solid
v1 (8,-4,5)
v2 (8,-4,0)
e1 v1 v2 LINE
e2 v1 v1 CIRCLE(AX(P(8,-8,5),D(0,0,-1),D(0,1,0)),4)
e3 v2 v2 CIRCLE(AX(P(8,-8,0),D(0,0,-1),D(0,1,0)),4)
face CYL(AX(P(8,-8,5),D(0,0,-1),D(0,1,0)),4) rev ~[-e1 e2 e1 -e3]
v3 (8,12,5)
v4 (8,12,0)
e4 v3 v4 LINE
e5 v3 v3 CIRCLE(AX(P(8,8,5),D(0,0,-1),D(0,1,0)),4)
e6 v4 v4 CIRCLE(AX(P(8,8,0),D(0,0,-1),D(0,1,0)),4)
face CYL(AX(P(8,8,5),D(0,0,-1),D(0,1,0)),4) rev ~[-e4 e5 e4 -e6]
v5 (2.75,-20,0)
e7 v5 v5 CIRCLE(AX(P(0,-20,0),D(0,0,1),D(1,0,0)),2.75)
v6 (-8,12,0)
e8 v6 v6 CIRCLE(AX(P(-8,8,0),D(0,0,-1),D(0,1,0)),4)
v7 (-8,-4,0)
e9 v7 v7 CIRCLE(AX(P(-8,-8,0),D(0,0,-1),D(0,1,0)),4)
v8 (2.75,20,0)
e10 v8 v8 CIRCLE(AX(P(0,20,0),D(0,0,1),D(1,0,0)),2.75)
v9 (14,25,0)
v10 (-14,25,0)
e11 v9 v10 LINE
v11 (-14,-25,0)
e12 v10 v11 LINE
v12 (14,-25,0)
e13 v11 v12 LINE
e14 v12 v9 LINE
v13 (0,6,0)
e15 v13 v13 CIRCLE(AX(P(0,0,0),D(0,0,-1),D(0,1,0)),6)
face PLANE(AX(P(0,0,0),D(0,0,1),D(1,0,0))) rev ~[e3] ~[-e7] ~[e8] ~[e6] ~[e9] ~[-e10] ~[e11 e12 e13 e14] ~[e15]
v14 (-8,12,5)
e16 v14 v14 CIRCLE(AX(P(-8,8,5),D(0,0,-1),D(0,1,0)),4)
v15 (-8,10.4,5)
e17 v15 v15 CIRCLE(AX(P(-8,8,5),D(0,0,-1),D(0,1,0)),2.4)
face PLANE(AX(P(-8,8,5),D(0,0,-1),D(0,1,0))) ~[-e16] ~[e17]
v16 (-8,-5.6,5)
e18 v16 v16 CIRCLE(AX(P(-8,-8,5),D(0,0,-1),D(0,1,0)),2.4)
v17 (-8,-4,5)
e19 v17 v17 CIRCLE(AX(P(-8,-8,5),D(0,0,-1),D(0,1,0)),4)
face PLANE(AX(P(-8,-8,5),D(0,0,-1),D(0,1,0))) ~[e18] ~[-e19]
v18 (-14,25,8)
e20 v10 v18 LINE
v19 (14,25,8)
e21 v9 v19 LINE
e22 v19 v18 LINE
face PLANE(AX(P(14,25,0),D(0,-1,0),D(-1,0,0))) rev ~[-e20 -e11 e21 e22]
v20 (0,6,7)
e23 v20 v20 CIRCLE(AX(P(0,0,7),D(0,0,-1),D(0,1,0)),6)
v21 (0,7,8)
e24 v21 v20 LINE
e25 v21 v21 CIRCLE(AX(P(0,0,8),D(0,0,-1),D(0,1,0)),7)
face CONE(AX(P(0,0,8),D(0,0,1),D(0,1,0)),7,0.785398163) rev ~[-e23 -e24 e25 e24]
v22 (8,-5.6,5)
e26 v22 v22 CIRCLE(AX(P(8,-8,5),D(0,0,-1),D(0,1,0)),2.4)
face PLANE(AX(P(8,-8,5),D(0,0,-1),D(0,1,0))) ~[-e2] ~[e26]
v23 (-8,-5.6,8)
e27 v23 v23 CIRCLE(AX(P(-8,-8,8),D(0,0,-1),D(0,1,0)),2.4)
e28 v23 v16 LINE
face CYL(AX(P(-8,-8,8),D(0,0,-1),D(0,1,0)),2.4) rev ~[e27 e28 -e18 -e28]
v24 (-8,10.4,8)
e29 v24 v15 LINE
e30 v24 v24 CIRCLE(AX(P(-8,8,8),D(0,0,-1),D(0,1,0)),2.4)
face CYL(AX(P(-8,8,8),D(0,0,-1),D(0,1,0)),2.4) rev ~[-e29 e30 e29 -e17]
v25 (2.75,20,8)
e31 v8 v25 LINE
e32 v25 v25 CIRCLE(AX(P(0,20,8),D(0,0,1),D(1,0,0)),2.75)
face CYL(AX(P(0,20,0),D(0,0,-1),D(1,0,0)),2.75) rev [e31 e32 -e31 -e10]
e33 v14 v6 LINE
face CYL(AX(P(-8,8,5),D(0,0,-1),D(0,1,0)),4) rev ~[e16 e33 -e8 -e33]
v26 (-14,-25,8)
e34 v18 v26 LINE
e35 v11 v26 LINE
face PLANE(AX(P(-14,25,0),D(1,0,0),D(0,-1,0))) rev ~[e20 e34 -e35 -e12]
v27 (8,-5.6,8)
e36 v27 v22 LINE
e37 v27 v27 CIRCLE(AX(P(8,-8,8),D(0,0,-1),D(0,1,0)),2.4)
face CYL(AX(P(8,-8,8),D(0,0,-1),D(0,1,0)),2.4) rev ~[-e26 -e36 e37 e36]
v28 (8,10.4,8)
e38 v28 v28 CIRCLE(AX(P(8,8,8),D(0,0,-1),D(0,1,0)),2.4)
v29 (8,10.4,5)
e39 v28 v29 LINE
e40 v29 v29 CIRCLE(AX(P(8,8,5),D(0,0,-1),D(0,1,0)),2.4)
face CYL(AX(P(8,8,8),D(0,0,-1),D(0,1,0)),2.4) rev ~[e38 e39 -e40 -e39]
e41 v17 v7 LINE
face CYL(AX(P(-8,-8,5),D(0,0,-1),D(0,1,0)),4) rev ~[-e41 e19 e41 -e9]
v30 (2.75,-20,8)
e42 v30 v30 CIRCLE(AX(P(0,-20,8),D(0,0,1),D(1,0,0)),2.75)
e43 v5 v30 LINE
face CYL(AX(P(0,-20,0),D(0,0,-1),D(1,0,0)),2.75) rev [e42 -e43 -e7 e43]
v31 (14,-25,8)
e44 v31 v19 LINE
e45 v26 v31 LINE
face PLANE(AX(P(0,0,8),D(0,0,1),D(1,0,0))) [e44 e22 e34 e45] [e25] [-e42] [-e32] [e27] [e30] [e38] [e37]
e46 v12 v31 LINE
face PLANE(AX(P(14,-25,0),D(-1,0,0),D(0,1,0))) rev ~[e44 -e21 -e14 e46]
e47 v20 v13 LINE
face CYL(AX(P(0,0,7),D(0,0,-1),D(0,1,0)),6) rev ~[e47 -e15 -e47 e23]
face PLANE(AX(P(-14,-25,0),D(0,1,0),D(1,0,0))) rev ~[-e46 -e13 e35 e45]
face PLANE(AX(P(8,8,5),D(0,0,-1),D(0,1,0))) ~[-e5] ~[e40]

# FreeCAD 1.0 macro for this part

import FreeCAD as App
import Part
import Sketcher

V = App.Vector
Q = App.Units.Quantity

doc = App.newDocument("Part")
body = doc.addObject("PartDesign::Body", "Body")

# Sketch on XY plane
sketch1 = body.newObject("Sketcher::SketchObject", "Sketch")
sketch1.AttachmentSupport = (doc.getObject("XY_Plane"), [""])
sketch1.MapMode = "FlatFace"
sketch1.addGeometry(Part.LineSegment(V(14, 25, 0), V(-14, 25, 0)), False)
sketch1.addGeometry(Part.LineSegment(V(-14, 25, 0), V(-14, -25, 0)), False)
sketch1.addGeometry(Part.LineSegment(V(-14, -25, 0), V(14, -25, 0)), False)
sketch1.addGeometry(Part.LineSegment(V(14, -25, 0), V(14, 25, 0)), False)
sketch1.addGeometry(Part.Circle(V(0, -20, 0), V(0, 0, 1), 2.75), False)
sketch1.addGeometry(Part.Circle(V(0, 20, 0), V(0, 0, 1), 2.75), False)
sketch1.addConstraint(Sketcher.Constraint("Coincident", 0, 2, 1, 1))
sketch1.addConstraint(Sketcher.Constraint("Coincident", 1, 2, 2, 1))
sketch1.addConstraint(Sketcher.Constraint("Coincident", 2, 2, 3, 1))
sketch1.addConstraint(Sketcher.Constraint("Coincident", 3, 2, 0, 1))
sketch1.addConstraint(Sketcher.Constraint("Horizontal", 0))
sketch1.addConstraint(Sketcher.Constraint("Vertical", 1))
sketch1.addConstraint(Sketcher.Constraint("Horizontal", 2))
sketch1.addConstraint(Sketcher.Constraint("Vertical", 3))
sketch1.addConstraint(Sketcher.Constraint("Equal", 4, 5))
sketch1.addConstraint(Sketcher.Constraint("Symmetric", 4, 3, 5, 3, -1, 1))
sketch1.addConstraint(Sketcher.Constraint("Symmetric", 0, 2, 2, 2, -1, 1))
sketch1.addConstraint(Sketcher.Constraint("PointOnObject", 4, 3, -2))
sketch1.addConstraint(Sketcher.Constraint("Diameter", 4, Q("5.5 mm")))
sketch1.addConstraint(Sketcher.Constraint("DistanceX", 0, 2, 0, 1, Q("28 mm")))
sketch1.addConstraint(Sketcher.Constraint("DistanceY", 1, 2, 1, 1, Q("50 mm")))
sketch1.addConstraint(Sketcher.Constraint("DistanceY", 4, 3, -1, 1, Q("20 mm")))
pad1 = body.newObject("PartDesign::Pad", "Pad")
pad1.Profile = sketch1
pad1.Length = 8

# Sketch on YZ plane
sketch2 = body.newObject("Sketcher::SketchObject", "Sketch001")
sketch2.AttachmentSupport = (doc.getObject("YZ_Plane"), [""])
sketch2.MapMode = "FlatFace"
sketch2.addGeometry(Part.LineSegment(V(0, 8, 0), V(0, 0, 0)), False)
sketch2.addGeometry(Part.LineSegment(V(0, 0, 0), V(6, 0, 0)), False)
sketch2.addGeometry(Part.LineSegment(V(6, 0, 0), V(6, 7, 0)), False)
sketch2.addGeometry(Part.LineSegment(V(6, 7, 0), V(7, 8, 0)), False)
sketch2.addGeometry(Part.LineSegment(V(7, 8, 0), V(0, 8, 0)), False)
sketch2.addConstraint(Sketcher.Constraint("Coincident", 0, 2, 1, 1))
sketch2.addConstraint(Sketcher.Constraint("Coincident", 1, 2, 2, 1))
sketch2.addConstraint(Sketcher.Constraint("Coincident", 2, 2, 3, 1))
sketch2.addConstraint(Sketcher.Constraint("Coincident", 3, 2, 4, 1))
sketch2.addConstraint(Sketcher.Constraint("Coincident", 4, 2, 0, 1))
sketch2.addConstraint(Sketcher.Constraint("Vertical", 0))
sketch2.addConstraint(Sketcher.Constraint("Horizontal", 1))
sketch2.addConstraint(Sketcher.Constraint("Vertical", 2))
sketch2.addConstraint(Sketcher.Constraint("Horizontal", 4))
sketch2.addConstraint(Sketcher.Constraint("Coincident", 0, 2, -1, 1))
sketch2.addConstraint(Sketcher.Constraint("Equal", 4, 2))
sketch2.addConstraint(Sketcher.Constraint("DistanceX", 1, 1, 1, 2, Q("6 mm")))
sketch2.addConstraint(Sketcher.Constraint("DistanceX", 4, 2, 4, 1, Q("7 mm")))
sketch2.addConstraint(Sketcher.Constraint("DistanceY", 0, 2, 0, 1, Q("8 mm")))
groove = body.newObject("PartDesign::Groove", "Groove")
groove.Profile = sketch2
groove.ReferenceAxis = (sketch2, ["V_Axis"])
groove.Angle = 360

# Sketch on YZ plane
sketch3 = body.newObject("Sketcher::SketchObject", "Sketch002")
sketch3.AttachmentSupport = (doc.getObject("YZ_Plane"), [""])
sketch3.MapMode = "FlatFace"
sketch3.AttachmentOffset = App.Placement(V(0, 0, 8), App.Rotation())
sketch3.addGeometry(Part.LineSegment(V(8, 8, 0), V(8, 0, 0)), False)
sketch3.addGeometry(Part.LineSegment(V(8, 0, 0), V(12, 0, 0)), False)
sketch3.addGeometry(Part.LineSegment(V(12, 0, 0), V(12, 5, 0)), False)
sketch3.addGeometry(Part.LineSegment(V(12, 5, 0), V(10.4, 5, 0)), False)
sketch3.addGeometry(Part.LineSegment(V(10.4, 5, 0), V(10.4, 8, 0)), False)
sketch3.addGeometry(Part.LineSegment(V(10.4, 8, 0), V(8, 8, 0)), False)
sketch3.addGeometry(Part.LineSegment(V(8, 8, 0), V(8, 0, 0)), True)  # axis
sketch3.addConstraint(Sketcher.Constraint("Coincident", 0, 2, 1, 1))
sketch3.addConstraint(Sketcher.Constraint("Coincident", 1, 2, 2, 1))
sketch3.addConstraint(Sketcher.Constraint("Coincident", 2, 2, 3, 1))
sketch3.addConstraint(Sketcher.Constraint("Coincident", 3, 2, 4, 1))
sketch3.addConstraint(Sketcher.Constraint("Coincident", 4, 2, 5, 1))
sketch3.addConstraint(Sketcher.Constraint("Coincident", 5, 2, 0, 1))
sketch3.addConstraint(Sketcher.Constraint("Vertical", 0))
sketch3.addConstraint(Sketcher.Constraint("Horizontal", 1))
sketch3.addConstraint(Sketcher.Constraint("Vertical", 2))
sketch3.addConstraint(Sketcher.Constraint("Horizontal", 3))
sketch3.addConstraint(Sketcher.Constraint("Vertical", 4))
sketch3.addConstraint(Sketcher.Constraint("Horizontal", 5))
sketch3.addConstraint(Sketcher.Constraint("Vertical", 6))
sketch3.addConstraint(Sketcher.Constraint("Coincident", 6, 1, 5, 2))
sketch3.addConstraint(Sketcher.Constraint("PointOnObject", 0, 2, -1))
sketch3.addConstraint(Sketcher.Constraint("PointOnObject", 6, 2, -1))
sketch3.addConstraint(Sketcher.Constraint("DistanceX", 1, 1, 1, 2, Q("4 mm")))
sketch3.addConstraint(Sketcher.Constraint("DistanceY", 0, 2, 0, 1, Q("8 mm")))
sketch3.addConstraint(Sketcher.Constraint("DistanceY", 2, 1, 2, 2, Q("5 mm")))
sketch3.addConstraint(Sketcher.Constraint("DistanceX", 3, 2, 3, 1, Q("1.6 mm")))
sketch3.addConstraint(Sketcher.Constraint("DistanceX", -1, 1, 0, 2, Q("8 mm")))
groove2 = body.newObject("PartDesign::Groove", "Groove001")
groove2.Profile = sketch3
groove2.ReferenceAxis = (sketch3, ["Axis0"])
groove2.Angle = 360

# Sketch on YZ plane
sketch4 = body.newObject("Sketcher::SketchObject", "Sketch003")
sketch4.AttachmentSupport = (doc.getObject("YZ_Plane"), [""])
sketch4.MapMode = "FlatFace"
sketch4.AttachmentOffset = App.Placement(V(0, 0, -8), App.Rotation())
sketch4.addGeometry(Part.LineSegment(V(8, 8, 0), V(8, 0, 0)), False)
sketch4.addGeometry(Part.LineSegment(V(8, 0, 0), V(12, 0, 0)), False)
sketch4.addGeometry(Part.LineSegment(V(12, 0, 0), V(12, 5, 0)), False)
sketch4.addGeometry(Part.LineSegment(V(12, 5, 0), V(10.4, 5, 0)), False)
sketch4.addGeometry(Part.LineSegment(V(10.4, 5, 0), V(10.4, 8, 0)), False)
sketch4.addGeometry(Part.LineSegment(V(10.4, 8, 0), V(8, 8, 0)), False)
sketch4.addGeometry(Part.LineSegment(V(8, 8, 0), V(8, 0, 0)), True)  # axis
sketch4.addConstraint(Sketcher.Constraint("Coincident", 0, 2, 1, 1))
sketch4.addConstraint(Sketcher.Constraint("Coincident", 1, 2, 2, 1))
sketch4.addConstraint(Sketcher.Constraint("Coincident", 2, 2, 3, 1))
sketch4.addConstraint(Sketcher.Constraint("Coincident", 3, 2, 4, 1))
sketch4.addConstraint(Sketcher.Constraint("Coincident", 4, 2, 5, 1))
sketch4.addConstraint(Sketcher.Constraint("Coincident", 5, 2, 0, 1))
sketch4.addConstraint(Sketcher.Constraint("Vertical", 0))
sketch4.addConstraint(Sketcher.Constraint("Horizontal", 1))
sketch4.addConstraint(Sketcher.Constraint("Vertical", 2))
sketch4.addConstraint(Sketcher.Constraint("Horizontal", 3))
sketch4.addConstraint(Sketcher.Constraint("Vertical", 4))
sketch4.addConstraint(Sketcher.Constraint("Horizontal", 5))
sketch4.addConstraint(Sketcher.Constraint("Vertical", 6))
sketch4.addConstraint(Sketcher.Constraint("Coincident", 6, 1, 5, 2))
sketch4.addConstraint(Sketcher.Constraint("PointOnObject", 0, 2, -1))
sketch4.addConstraint(Sketcher.Constraint("PointOnObject", 6, 2, -1))
sketch4.addConstraint(Sketcher.Constraint("DistanceX", 1, 1, 1, 2, Q("4 mm")))
sketch4.addConstraint(Sketcher.Constraint("DistanceY", 0, 2, 0, 1, Q("8 mm")))
sketch4.addConstraint(Sketcher.Constraint("DistanceY", 2, 1, 2, 2, Q("5 mm")))
sketch4.addConstraint(Sketcher.Constraint("DistanceX", 3, 2, 3, 1, Q("1.6 mm")))
sketch4.addConstraint(Sketcher.Constraint("DistanceX", -1, 1, 0, 2, Q("8 mm")))
groove3 = body.newObject("PartDesign::Groove", "Groove002")
groove3.Profile = sketch4
groove3.ReferenceAxis = (sketch4, ["Axis0"])
groove3.Angle = 360

# Sketch on YZ plane
sketch5 = body.newObject("Sketcher::SketchObject", "Sketch004")
sketch5.AttachmentSupport = (doc.getObject("YZ_Plane"), [""])
sketch5.MapMode = "FlatFace"
sketch5.AttachmentOffset = App.Placement(V(0, 0, 8), App.Rotation())
sketch5.addGeometry(Part.LineSegment(V(-8, 8, 0), V(-8, 0, 0)), False)
sketch5.addGeometry(Part.LineSegment(V(-8, 0, 0), V(-4, 0, 0)), False)
sketch5.addGeometry(Part.LineSegment(V(-4, 0, 0), V(-4, 5, 0)), False)
sketch5.addGeometry(Part.LineSegment(V(-4, 5, 0), V(-5.6, 5, 0)), False)
sketch5.addGeometry(Part.LineSegment(V(-5.6, 5, 0), V(-5.6, 8, 0)), False)
sketch5.addGeometry(Part.LineSegment(V(-5.6, 8, 0), V(-8, 8, 0)), False)
sketch5.addGeometry(Part.LineSegment(V(-8, 8, 0), V(-8, 0, 0)), True)  # axis
sketch5.addConstraint(Sketcher.Constraint("Coincident", 0, 2, 1, 1))
sketch5.addConstraint(Sketcher.Constraint("Coincident", 1, 2, 2, 1))
sketch5.addConstraint(Sketcher.Constraint("Coincident", 2, 2, 3, 1))
sketch5.addConstraint(Sketcher.Constraint("Coincident", 3, 2, 4, 1))
sketch5.addConstraint(Sketcher.Constraint("Coincident", 4, 2, 5, 1))
sketch5.addConstraint(Sketcher.Constraint("Coincident", 5, 2, 0, 1))
sketch5.addConstraint(Sketcher.Constraint("Vertical", 0))
sketch5.addConstraint(Sketcher.Constraint("Horizontal", 1))
sketch5.addConstraint(Sketcher.Constraint("Vertical", 2))
sketch5.addConstraint(Sketcher.Constraint("Horizontal", 3))
sketch5.addConstraint(Sketcher.Constraint("Vertical", 4))
sketch5.addConstraint(Sketcher.Constraint("Horizontal", 5))
sketch5.addConstraint(Sketcher.Constraint("Vertical", 6))
sketch5.addConstraint(Sketcher.Constraint("Coincident", 6, 1, 5, 2))
sketch5.addConstraint(Sketcher.Constraint("PointOnObject", 0, 2, -1))
sketch5.addConstraint(Sketcher.Constraint("PointOnObject", 6, 2, -1))
sketch5.addConstraint(Sketcher.Constraint("DistanceX", 1, 1, 1, 2, Q("4 mm")))
sketch5.addConstraint(Sketcher.Constraint("DistanceY", 0, 2, 0, 1, Q("8 mm")))
sketch5.addConstraint(Sketcher.Constraint("DistanceY", 2, 1, 2, 2, Q("5 mm")))
sketch5.addConstraint(Sketcher.Constraint("DistanceX", 3, 2, 3, 1, Q("1.6 mm")))
sketch5.addConstraint(Sketcher.Constraint("DistanceX", 0, 2, -1, 1, Q("8 mm")))
groove4 = body.newObject("PartDesign::Groove", "Groove003")
groove4.Profile = sketch5
groove4.ReferenceAxis = (sketch5, ["Axis0"])
groove4.Angle = 360

# Sketch on YZ plane
sketch6 = body.newObject("Sketcher::SketchObject", "Sketch005")
sketch6.AttachmentSupport = (doc.getObject("YZ_Plane"), [""])
sketch6.MapMode = "FlatFace"
sketch6.AttachmentOffset = App.Placement(V(0, 0, -8), App.Rotation())
sketch6.addGeometry(Part.LineSegment(V(-8, 8, 0), V(-8, 0, 0)), False)
sketch6.addGeometry(Part.LineSegment(V(-8, 0, 0), V(-4, 0, 0)), False)
sketch6.addGeometry(Part.LineSegment(V(-4, 0, 0), V(-4, 5, 0)), False)
sketch6.addGeometry(Part.LineSegment(V(-4, 5, 0), V(-5.6, 5, 0)), False)
sketch6.addGeometry(Part.LineSegment(V(-5.6, 5, 0), V(-5.6, 8, 0)), False)
sketch6.addGeometry(Part.LineSegment(V(-5.6, 8, 0), V(-8, 8, 0)), False)
sketch6.addGeometry(Part.LineSegment(V(-8, 8, 0), V(-8, 0, 0)), True)  # axis
sketch6.addConstraint(Sketcher.Constraint("Coincident", 0, 2, 1, 1))
sketch6.addConstraint(Sketcher.Constraint("Coincident", 1, 2, 2, 1))
sketch6.addConstraint(Sketcher.Constraint("Coincident", 2, 2, 3, 1))
sketch6.addConstraint(Sketcher.Constraint("Coincident", 3, 2, 4, 1))
sketch6.addConstraint(Sketcher.Constraint("Coincident", 4, 2, 5, 1))
sketch6.addConstraint(Sketcher.Constraint("Coincident", 5, 2, 0, 1))
sketch6.addConstraint(Sketcher.Constraint("Vertical", 0))
sketch6.addConstraint(Sketcher.Constraint("Horizontal", 1))
sketch6.addConstraint(Sketcher.Constraint("Vertical", 2))
sketch6.addConstraint(Sketcher.Constraint("Horizontal", 3))
sketch6.addConstraint(Sketcher.Constraint("Vertical", 4))
sketch6.addConstraint(Sketcher.Constraint("Horizontal", 5))
sketch6.addConstraint(Sketcher.Constraint("Vertical", 6))
sketch6.addConstraint(Sketcher.Constraint("Coincident", 6, 1, 5, 2))
sketch6.addConstraint(Sketcher.Constraint("PointOnObject", 0, 2, -1))
sketch6.addConstraint(Sketcher.Constraint("PointOnObject", 6, 2, -1))
sketch6.addConstraint(Sketcher.Constraint("DistanceX", 1, 1, 1, 2, Q("4 mm")))
sketch6.addConstraint(Sketcher.Constraint("DistanceY", 0, 2, 0, 1, Q("8 mm")))
sketch6.addConstraint(Sketcher.Constraint("DistanceY", 2, 1, 2, 2, Q("5 mm")))
sketch6.addConstraint(Sketcher.Constraint("DistanceX", 3, 2, 3, 1, Q("1.6 mm")))
sketch6.addConstraint(Sketcher.Constraint("DistanceX", 0, 2, -1, 1, Q("8 mm")))
groove5 = body.newObject("PartDesign::Groove", "Groove004")
groove5.Profile = sketch6
groove5.ReferenceAxis = (sketch6, ["Axis0"])
groove5.Angle = 360

doc.recompute()
